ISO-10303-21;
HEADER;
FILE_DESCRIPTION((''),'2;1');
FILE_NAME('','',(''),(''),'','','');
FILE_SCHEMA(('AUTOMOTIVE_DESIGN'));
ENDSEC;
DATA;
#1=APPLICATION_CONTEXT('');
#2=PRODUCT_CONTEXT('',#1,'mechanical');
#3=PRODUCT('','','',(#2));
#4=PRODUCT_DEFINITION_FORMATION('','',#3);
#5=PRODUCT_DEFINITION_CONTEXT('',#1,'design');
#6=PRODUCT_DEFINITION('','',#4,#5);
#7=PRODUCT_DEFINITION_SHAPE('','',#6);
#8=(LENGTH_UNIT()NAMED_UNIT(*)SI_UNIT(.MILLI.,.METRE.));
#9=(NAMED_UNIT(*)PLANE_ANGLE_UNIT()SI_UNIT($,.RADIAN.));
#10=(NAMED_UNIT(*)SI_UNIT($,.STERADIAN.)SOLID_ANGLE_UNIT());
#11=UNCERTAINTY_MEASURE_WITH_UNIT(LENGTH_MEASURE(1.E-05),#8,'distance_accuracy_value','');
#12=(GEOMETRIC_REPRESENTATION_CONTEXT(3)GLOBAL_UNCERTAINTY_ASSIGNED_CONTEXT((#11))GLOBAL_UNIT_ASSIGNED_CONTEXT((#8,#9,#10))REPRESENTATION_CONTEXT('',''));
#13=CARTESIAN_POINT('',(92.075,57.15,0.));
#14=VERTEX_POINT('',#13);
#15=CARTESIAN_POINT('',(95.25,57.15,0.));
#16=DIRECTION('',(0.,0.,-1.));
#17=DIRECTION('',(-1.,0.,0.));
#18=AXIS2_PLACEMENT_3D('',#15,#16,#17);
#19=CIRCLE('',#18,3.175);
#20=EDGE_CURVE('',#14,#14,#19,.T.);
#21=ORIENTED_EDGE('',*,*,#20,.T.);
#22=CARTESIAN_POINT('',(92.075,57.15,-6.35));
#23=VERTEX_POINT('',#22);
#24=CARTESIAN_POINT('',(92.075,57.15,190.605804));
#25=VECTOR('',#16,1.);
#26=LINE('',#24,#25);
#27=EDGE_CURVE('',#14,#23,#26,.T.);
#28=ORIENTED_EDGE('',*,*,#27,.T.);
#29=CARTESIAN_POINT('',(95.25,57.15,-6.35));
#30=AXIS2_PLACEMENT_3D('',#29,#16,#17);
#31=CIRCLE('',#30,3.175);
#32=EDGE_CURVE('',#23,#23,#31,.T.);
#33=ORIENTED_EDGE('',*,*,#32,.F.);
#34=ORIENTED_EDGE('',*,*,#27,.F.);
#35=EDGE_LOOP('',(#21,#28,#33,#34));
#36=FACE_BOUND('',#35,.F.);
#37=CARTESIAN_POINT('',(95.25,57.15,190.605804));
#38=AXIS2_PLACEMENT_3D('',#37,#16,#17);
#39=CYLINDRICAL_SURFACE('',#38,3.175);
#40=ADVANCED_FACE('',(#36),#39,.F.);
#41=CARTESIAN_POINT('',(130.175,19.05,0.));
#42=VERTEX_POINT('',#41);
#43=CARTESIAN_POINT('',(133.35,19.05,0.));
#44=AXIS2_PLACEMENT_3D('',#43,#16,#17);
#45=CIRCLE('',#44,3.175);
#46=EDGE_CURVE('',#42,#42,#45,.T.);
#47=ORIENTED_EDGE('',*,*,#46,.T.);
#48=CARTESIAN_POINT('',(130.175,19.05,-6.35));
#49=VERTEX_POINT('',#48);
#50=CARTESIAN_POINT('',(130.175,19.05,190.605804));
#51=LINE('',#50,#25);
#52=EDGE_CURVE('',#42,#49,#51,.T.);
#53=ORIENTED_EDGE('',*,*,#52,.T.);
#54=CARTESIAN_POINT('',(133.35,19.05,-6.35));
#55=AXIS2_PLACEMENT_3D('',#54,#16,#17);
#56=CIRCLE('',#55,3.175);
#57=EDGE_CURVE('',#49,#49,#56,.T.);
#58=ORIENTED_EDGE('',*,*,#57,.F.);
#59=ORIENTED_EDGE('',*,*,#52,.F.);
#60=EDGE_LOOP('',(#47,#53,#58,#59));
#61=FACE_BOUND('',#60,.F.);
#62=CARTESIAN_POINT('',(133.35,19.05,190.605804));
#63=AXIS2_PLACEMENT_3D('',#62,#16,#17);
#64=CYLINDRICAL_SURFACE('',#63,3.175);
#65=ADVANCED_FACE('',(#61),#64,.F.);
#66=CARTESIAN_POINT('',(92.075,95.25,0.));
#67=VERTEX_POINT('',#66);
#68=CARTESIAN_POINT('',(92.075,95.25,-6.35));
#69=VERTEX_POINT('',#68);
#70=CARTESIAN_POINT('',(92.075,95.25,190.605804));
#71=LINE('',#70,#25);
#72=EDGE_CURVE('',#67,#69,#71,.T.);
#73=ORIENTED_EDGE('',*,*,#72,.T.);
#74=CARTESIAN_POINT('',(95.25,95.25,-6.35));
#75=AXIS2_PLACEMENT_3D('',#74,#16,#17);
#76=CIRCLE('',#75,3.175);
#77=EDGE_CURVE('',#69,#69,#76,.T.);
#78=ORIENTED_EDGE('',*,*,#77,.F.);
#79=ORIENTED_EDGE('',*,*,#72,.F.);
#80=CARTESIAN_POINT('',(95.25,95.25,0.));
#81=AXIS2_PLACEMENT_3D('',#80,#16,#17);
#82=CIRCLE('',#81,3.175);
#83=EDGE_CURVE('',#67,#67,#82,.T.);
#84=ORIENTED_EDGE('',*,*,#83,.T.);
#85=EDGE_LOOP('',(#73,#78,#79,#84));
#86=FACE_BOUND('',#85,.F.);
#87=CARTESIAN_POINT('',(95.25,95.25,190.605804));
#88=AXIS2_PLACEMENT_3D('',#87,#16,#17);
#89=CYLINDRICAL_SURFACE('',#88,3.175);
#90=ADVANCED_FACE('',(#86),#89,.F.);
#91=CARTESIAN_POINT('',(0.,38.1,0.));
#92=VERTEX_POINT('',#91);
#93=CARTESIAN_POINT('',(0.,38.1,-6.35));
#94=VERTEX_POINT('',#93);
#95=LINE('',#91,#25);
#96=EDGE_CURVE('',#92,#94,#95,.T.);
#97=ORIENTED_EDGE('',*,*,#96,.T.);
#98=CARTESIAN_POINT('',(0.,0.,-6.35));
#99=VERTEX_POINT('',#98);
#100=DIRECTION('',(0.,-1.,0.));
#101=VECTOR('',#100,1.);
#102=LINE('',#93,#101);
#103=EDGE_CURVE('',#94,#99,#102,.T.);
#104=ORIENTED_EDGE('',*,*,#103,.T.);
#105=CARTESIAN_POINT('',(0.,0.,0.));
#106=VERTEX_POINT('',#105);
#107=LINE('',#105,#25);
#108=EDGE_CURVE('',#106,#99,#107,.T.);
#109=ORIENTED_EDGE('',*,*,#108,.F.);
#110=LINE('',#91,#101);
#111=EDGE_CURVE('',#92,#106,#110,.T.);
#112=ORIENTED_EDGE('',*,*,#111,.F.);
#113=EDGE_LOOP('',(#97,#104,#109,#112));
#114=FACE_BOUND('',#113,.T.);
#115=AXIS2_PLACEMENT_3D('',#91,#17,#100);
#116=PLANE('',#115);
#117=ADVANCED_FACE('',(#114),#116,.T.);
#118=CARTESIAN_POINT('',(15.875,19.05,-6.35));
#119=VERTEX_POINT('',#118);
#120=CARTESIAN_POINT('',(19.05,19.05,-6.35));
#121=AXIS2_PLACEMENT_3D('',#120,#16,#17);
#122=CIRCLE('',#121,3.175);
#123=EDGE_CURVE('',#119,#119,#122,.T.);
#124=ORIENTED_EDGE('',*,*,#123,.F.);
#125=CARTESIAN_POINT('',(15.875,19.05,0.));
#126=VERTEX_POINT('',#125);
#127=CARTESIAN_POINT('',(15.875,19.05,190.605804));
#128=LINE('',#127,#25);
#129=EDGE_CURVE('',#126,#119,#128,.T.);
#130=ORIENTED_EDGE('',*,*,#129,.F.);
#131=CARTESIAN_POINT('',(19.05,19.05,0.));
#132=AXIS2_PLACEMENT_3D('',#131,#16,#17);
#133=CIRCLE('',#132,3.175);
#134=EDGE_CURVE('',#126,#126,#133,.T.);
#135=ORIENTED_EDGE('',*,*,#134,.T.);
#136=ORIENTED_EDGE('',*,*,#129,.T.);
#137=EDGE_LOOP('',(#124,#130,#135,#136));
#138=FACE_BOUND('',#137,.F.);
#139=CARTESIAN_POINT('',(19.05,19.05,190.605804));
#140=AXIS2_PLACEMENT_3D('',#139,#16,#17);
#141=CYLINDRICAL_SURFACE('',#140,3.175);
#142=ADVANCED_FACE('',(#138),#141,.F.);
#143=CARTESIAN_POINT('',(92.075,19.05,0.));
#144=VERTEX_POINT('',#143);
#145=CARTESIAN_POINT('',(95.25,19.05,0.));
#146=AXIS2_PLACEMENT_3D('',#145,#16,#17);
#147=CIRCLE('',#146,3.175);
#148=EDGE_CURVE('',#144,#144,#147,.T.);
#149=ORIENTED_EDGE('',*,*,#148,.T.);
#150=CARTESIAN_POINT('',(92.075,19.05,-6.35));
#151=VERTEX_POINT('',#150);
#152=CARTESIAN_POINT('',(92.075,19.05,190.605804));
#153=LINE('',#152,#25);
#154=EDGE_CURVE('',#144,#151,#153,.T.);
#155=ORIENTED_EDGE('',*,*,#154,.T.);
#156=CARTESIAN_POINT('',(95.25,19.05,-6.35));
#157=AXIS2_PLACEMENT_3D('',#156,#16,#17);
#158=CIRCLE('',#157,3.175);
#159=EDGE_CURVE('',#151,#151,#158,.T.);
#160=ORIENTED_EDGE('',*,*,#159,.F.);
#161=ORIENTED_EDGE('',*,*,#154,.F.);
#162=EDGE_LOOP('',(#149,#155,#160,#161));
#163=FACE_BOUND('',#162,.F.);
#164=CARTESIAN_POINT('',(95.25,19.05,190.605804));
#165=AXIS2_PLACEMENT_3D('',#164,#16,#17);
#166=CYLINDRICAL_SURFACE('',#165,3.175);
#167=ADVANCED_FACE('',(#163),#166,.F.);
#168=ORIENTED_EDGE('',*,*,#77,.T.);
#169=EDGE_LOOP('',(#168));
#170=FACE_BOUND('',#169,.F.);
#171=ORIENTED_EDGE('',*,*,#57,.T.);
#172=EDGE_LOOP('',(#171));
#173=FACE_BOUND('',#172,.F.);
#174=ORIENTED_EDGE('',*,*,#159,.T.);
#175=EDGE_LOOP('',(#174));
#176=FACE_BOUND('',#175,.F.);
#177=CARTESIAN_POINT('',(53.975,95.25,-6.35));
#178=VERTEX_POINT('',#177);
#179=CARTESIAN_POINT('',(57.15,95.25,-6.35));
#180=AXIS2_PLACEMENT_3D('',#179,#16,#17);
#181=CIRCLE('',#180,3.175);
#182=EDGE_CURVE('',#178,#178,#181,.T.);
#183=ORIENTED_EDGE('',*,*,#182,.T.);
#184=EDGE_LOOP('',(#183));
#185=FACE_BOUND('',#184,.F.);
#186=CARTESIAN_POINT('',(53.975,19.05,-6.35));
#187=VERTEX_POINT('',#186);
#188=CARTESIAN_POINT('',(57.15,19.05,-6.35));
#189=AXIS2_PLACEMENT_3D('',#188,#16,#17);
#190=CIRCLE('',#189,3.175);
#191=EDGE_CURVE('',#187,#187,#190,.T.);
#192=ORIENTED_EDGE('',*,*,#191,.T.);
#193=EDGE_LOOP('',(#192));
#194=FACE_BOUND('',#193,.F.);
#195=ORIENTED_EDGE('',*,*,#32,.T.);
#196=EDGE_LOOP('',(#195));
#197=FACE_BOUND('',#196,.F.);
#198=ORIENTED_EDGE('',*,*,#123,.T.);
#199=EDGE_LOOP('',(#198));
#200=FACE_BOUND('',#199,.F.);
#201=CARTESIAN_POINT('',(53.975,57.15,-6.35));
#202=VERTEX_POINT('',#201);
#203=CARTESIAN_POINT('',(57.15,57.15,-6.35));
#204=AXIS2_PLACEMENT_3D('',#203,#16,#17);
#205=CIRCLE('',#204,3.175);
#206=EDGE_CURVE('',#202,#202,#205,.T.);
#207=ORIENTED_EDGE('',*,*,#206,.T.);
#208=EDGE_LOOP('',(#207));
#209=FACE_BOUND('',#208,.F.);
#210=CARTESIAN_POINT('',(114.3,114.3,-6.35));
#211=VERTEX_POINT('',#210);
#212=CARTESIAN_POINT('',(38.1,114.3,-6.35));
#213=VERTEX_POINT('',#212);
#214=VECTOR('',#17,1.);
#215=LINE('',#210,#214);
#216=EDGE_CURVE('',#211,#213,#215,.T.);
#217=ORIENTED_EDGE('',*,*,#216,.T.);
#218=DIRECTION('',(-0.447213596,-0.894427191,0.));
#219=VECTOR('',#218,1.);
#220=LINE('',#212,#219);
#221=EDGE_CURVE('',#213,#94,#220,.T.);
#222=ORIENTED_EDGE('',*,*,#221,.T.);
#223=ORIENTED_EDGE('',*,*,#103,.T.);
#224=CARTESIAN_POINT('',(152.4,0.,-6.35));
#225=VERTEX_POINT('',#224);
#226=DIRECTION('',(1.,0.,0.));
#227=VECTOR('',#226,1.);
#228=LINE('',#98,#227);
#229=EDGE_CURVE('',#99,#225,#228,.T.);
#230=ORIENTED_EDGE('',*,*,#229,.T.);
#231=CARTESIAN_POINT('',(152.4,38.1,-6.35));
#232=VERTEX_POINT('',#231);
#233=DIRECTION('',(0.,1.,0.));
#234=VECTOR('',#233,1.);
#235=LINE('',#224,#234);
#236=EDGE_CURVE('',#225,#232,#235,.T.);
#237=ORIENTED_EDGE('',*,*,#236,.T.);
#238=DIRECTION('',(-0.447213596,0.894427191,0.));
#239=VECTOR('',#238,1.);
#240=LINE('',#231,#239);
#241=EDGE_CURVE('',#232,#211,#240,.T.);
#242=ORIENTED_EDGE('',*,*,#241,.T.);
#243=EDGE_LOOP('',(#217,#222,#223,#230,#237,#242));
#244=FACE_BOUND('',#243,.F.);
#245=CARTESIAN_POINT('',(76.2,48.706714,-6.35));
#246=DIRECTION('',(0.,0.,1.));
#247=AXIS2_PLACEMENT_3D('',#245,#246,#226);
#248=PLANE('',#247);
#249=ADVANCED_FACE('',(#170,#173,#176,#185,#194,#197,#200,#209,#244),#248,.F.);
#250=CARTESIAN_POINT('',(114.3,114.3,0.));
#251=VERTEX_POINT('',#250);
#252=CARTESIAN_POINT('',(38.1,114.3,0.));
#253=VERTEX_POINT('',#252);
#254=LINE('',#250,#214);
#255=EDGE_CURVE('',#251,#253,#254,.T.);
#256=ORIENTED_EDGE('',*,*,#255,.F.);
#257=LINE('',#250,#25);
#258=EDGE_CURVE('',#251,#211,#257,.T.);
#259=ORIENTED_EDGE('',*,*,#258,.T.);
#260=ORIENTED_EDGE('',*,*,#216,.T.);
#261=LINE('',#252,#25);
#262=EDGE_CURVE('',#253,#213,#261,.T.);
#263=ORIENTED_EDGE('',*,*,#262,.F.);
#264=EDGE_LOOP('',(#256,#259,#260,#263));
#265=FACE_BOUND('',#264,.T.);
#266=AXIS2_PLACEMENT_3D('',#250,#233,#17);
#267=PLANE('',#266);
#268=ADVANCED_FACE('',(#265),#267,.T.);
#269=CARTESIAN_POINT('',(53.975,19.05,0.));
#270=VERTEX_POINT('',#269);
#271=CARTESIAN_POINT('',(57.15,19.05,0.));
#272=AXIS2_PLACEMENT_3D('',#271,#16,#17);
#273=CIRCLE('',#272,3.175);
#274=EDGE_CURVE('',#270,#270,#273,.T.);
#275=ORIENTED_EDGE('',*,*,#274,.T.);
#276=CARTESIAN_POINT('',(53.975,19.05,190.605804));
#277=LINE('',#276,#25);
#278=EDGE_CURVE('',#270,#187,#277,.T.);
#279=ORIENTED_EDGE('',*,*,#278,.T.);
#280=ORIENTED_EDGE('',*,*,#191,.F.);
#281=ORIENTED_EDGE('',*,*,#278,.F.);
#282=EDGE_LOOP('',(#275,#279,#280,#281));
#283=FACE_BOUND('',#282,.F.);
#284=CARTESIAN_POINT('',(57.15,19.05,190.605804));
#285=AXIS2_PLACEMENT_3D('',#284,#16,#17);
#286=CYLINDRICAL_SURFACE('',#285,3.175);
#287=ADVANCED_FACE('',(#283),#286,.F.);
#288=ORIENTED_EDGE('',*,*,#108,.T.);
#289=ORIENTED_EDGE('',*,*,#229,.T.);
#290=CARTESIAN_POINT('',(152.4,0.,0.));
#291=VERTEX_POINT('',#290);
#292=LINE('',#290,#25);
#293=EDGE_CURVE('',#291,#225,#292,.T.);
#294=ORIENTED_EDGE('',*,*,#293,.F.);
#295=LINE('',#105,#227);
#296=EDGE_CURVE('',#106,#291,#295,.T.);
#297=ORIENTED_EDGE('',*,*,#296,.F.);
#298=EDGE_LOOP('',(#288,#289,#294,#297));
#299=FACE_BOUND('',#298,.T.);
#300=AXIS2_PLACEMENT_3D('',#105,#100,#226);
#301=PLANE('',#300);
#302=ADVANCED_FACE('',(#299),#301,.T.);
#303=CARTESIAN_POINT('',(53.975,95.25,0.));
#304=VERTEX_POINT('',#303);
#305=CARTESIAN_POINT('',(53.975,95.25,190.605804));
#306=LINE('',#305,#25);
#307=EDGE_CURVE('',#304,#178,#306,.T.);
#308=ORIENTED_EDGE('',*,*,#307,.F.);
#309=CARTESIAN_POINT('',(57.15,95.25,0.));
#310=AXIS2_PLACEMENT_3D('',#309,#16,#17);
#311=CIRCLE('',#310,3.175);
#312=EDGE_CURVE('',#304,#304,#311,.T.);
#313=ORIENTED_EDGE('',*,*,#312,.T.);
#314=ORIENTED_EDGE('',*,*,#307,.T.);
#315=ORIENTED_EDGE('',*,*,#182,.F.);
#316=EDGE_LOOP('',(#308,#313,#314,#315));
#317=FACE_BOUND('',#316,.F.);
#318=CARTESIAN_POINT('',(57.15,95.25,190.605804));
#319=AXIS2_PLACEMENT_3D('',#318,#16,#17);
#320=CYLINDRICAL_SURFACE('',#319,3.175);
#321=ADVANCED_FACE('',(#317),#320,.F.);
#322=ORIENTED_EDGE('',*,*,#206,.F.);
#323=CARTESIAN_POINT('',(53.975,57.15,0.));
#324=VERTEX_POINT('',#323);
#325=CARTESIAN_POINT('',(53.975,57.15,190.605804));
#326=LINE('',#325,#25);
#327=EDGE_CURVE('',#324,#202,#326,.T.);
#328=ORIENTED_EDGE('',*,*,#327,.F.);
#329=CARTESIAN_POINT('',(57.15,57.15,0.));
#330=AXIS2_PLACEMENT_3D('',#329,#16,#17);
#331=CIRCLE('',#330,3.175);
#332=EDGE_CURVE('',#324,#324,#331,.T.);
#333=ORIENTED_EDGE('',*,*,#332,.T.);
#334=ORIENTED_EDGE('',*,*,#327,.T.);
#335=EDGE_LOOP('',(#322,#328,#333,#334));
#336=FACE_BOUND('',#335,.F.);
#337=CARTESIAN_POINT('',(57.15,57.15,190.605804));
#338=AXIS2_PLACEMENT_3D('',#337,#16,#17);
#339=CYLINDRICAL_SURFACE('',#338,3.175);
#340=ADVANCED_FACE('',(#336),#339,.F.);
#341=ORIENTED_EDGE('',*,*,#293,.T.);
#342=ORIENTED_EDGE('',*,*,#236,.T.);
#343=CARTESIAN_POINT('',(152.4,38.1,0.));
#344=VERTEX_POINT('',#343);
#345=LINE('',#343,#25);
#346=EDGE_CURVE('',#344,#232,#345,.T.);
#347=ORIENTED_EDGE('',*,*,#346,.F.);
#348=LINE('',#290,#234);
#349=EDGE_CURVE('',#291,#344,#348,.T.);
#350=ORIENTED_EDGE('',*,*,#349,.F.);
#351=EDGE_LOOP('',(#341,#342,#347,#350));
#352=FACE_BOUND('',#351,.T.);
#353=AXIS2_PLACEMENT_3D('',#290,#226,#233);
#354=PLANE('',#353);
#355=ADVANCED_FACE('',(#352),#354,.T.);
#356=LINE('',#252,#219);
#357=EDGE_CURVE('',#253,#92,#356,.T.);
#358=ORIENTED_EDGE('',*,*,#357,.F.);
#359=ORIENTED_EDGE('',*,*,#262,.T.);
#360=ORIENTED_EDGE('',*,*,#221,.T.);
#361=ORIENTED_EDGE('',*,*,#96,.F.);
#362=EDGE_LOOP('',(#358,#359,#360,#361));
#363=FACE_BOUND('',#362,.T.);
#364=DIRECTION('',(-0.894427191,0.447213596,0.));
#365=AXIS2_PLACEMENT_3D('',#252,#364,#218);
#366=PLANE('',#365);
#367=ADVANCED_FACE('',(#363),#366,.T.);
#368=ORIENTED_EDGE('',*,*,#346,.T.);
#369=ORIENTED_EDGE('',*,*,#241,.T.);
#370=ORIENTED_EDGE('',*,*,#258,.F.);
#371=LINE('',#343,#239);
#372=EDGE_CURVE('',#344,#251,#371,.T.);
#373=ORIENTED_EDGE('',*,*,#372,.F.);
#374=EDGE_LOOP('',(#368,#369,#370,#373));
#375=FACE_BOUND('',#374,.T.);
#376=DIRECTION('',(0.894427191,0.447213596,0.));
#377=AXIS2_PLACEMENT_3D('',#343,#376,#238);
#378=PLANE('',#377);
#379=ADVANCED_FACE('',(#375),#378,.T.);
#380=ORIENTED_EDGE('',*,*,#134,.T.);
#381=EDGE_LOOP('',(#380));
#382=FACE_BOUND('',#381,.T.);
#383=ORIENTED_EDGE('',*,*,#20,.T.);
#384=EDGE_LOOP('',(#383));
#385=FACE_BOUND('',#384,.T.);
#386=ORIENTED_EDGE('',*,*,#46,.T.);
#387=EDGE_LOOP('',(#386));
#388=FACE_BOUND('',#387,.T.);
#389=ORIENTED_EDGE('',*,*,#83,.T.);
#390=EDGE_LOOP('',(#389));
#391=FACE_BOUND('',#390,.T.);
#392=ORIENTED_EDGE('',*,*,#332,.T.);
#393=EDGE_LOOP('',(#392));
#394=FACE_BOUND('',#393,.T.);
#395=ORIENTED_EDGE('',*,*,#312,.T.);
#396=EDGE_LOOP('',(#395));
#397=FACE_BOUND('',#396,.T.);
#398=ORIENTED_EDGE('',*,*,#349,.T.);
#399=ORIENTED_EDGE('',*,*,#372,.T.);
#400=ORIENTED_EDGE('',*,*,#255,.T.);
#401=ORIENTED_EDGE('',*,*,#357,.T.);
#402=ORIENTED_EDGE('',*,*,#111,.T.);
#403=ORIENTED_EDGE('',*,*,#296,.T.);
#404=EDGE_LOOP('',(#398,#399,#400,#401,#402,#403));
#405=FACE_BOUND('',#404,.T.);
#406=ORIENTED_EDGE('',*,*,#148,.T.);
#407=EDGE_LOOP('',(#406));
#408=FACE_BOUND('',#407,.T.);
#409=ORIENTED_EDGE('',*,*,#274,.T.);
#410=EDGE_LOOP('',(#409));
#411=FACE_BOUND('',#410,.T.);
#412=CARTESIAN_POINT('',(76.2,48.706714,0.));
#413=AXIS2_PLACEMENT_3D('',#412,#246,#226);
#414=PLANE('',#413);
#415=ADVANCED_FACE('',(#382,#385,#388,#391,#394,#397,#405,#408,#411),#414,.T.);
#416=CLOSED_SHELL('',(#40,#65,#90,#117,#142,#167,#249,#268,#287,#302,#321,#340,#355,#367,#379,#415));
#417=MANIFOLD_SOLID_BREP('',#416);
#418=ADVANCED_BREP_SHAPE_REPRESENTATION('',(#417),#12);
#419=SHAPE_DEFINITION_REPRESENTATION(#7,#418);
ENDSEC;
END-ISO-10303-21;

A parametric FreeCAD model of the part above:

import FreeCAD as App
import Part
import Sketcher
from FreeCAD import Vector
Q = App.Units.Quantity


def add_polygon(sketch, points):
    """Adds a closed chain of lines whose ends are joined by coincident constraints."""
    first, n = sketch.GeometryCount, len(points)
    for a, b in zip(points, points[1:] + points[:1]):
        sketch.addGeometry(Part.LineSegment(App.Vector(*a, 0), App.Vector(*b, 0)), False)
    for i in range(n):
        sketch.addConstraint(Sketcher.Constraint("Coincident", first + i, 2, first + (i + 1) % n, 1))

doc = App.newDocument("Part")
params = doc.addObject("Spreadsheet::Sheet", "Params")
for row, (alias, value) in enumerate([
    ("sketch1_width", "6 in"),
    ("sketch1_width2", "3 in"),
    ("sketch1_height", "1.5 in"),
    ("pad1_length", "0.25 in"),
    ("sketch2_diameter", "0.25 in"),
    ("hole_diameter", "0.25 in"),
], start=1):
    params.set(f"A{row}", alias)
    params.set(f"B{row}", "=" + value)
    params.setAlias(f"B{row}", alias)

body = doc.addObject("PartDesign::Body", "Body")

# Sketch on XY plane
sketch1 = doc.addObject("Sketcher::SketchObject", "Sketch")
body.addObject(sketch1)
sketch1.AttachmentSupport = (doc.XY_Plane, [""])
sketch1.MapMode = "FlatFace"
add_polygon(sketch1, [(0, 38), (0, 0), (152, 0), (152, 38), (114, 114), (38, 114)])  # lines 0-5
sketch1.addConstraint(Sketcher.Constraint("Vertical", 0))
sketch1.addConstraint(Sketcher.Constraint("Horizontal", 1))
sketch1.addConstraint(Sketcher.Constraint("Vertical", 2))
sketch1.addConstraint(Sketcher.Constraint("Horizontal", 4))
sketch1.addConstraint(Sketcher.Constraint("Coincident", 0, 2, -1, 1))
sketch1.addConstraint(Sketcher.Constraint("Horizontal", 2, 2, 5, 2))
sketch1.addConstraint(Sketcher.Constraint("Equal", 3, 5))
sketch1.addConstraint(Sketcher.Constraint("DistanceX", 1, 1, 1, 2, Q("6 in")))
sketch1.addConstraint(Sketcher.Constraint("DistanceX", 4, 2, 4, 1, Q("3 in")))
sketch1.addConstraint(Sketcher.Constraint("DistanceY", 0, 2, 0, 1, Q("1.5 in")))
sketch1.addConstraint(Sketcher.Constraint("DistanceY", 2, 2, 3, 2, Q("3 in")))
sketch1.setExpression("Constraints[13]", "Params.sketch1_width")
sketch1.setExpression("Constraints[14]", "Params.sketch1_width2")
sketch1.setExpression("Constraints[15]", "Params.sketch1_height")
pad1 = doc.addObject("PartDesign::Pad", "Pad")
body.addObject(pad1)
pad1.Profile = sketch1
pad1.setExpression("Length", "Params.pad1_length")
pad1.Reversed = True

# Sketch on XY plane
sketch2 = doc.addObject("Sketcher::SketchObject", "Sketch001")
body.addObject(sketch2)
sketch2.AttachmentSupport = (doc.XY_Plane, [""])
sketch2.MapMode = "FlatFace"
sketch2.addGeometry(Part.Circle(Vector(57.1, 95.2, 0), Vector(0, 0, 1), 3.2), False)
sketch2.addGeometry(Part.Circle(Vector(95.2, 95.2, 0), Vector(0, 0, 1), 3.2), False)
sketch2.addGeometry(Part.Circle(Vector(95.2, 57.1, 0), Vector(0, 0, 1), 3.2), False)
sketch2.addGeometry(Part.Circle(Vector(57.1, 57.1, 0), Vector(0, 0, 1), 3.2), False)
sketch2.addGeometry(Part.Circle(Vector(19.1, 19.1, 0), Vector(0, 0, 1), 3.2), False)
sketch2.addGeometry(Part.Circle(Vector(57.1, 19.1, 0), Vector(0, 0, 1), 3.2), False)
sketch2.addGeometry(Part.Circle(Vector(95.2, 19.1, 0), Vector(0, 0, 1), 3.2), False)
sketch2.addGeometry(Part.Circle(Vector(133.3, 19.1, 0), Vector(0, 0, 1), 3.2), False)
sketch2.addConstraint(Sketcher.Constraint("Equal", 0, 1))
sketch2.addConstraint(Sketcher.Constraint("Equal", 1, 2))
sketch2.addConstraint(Sketcher.Constraint("Equal", 2, 3))
sketch2.addConstraint(Sketcher.Constraint("Equal", 3, 4))
sketch2.addConstraint(Sketcher.Constraint("Equal", 4, 5))
sketch2.addConstraint(Sketcher.Constraint("Equal", 5, 6))
sketch2.addConstraint(Sketcher.Constraint("Equal", 6, 7))
sketch2.addConstraint(Sketcher.Constraint("Horizontal", 0, 3, 1, 3))
sketch2.addConstraint(Sketcher.Constraint("Horizontal", 2, 3, 3, 3))
sketch2.addConstraint(Sketcher.Constraint("Horizontal", 4, 3, 5, 3))
sketch2.addConstraint(Sketcher.Constraint("Horizontal", 5, 3, 6, 3))
sketch2.addConstraint(Sketcher.Constraint("Horizontal", 6, 3, 7, 3))
sketch2.addConstraint(Sketcher.Constraint("Vertical", 1, 3, 2, 3))
sketch2.addConstraint(Sketcher.Constraint("Vertical", 0, 3, 3, 3))
sketch2.addConstraint(Sketcher.Constraint("Vertical", 3, 3, 5, 3))
sketch2.addConstraint(Sketcher.Constraint("Vertical", 2, 3, 6, 3))
sketch2.addConstraint(Sketcher.Constraint("Diameter", 0, Q("0.25 in")))
sketch2.addConstraint(Sketcher.Constraint("DistanceY", 4, 3, 0, 3, Q("3 in")))
sketch2.addConstraint(Sketcher.Constraint("DistanceX", 4, 3, 2, 3, Q("3 in")))
sketch2.addConstraint(Sketcher.Constraint("DistanceX", 5, 3, 7, 3, Q("3 in")))
sketch2.addConstraint(Sketcher.Constraint("DistanceX", 0, 3, 1, 3, Q("1.5 in")))
sketch2.addConstraint(Sketcher.Constraint("DistanceY", 2, 3, 1, 3, Q("1.5 in")))
sketch2.addConstraint(Sketcher.Constraint("DistanceX", -1, 1, 0, 3, Q("2.25 in")))
sketch2.addConstraint(Sketcher.Constraint("DistanceY", -1, 1, 0, 3, Q("3.75 in")))
sketch2.setExpression("Constraints[16]", "Params.sketch2_diameter")
doc.recompute()
hole = doc.addObject("PartDesign::Hole", "Hole")
body.addObject(hole)
hole.Profile = sketch2
hole.ThreadType = "None"
hole.setExpression("Diameter", "Params.hole_diameter")
hole.DepthType = "ThroughAll"

doc.recompute()
